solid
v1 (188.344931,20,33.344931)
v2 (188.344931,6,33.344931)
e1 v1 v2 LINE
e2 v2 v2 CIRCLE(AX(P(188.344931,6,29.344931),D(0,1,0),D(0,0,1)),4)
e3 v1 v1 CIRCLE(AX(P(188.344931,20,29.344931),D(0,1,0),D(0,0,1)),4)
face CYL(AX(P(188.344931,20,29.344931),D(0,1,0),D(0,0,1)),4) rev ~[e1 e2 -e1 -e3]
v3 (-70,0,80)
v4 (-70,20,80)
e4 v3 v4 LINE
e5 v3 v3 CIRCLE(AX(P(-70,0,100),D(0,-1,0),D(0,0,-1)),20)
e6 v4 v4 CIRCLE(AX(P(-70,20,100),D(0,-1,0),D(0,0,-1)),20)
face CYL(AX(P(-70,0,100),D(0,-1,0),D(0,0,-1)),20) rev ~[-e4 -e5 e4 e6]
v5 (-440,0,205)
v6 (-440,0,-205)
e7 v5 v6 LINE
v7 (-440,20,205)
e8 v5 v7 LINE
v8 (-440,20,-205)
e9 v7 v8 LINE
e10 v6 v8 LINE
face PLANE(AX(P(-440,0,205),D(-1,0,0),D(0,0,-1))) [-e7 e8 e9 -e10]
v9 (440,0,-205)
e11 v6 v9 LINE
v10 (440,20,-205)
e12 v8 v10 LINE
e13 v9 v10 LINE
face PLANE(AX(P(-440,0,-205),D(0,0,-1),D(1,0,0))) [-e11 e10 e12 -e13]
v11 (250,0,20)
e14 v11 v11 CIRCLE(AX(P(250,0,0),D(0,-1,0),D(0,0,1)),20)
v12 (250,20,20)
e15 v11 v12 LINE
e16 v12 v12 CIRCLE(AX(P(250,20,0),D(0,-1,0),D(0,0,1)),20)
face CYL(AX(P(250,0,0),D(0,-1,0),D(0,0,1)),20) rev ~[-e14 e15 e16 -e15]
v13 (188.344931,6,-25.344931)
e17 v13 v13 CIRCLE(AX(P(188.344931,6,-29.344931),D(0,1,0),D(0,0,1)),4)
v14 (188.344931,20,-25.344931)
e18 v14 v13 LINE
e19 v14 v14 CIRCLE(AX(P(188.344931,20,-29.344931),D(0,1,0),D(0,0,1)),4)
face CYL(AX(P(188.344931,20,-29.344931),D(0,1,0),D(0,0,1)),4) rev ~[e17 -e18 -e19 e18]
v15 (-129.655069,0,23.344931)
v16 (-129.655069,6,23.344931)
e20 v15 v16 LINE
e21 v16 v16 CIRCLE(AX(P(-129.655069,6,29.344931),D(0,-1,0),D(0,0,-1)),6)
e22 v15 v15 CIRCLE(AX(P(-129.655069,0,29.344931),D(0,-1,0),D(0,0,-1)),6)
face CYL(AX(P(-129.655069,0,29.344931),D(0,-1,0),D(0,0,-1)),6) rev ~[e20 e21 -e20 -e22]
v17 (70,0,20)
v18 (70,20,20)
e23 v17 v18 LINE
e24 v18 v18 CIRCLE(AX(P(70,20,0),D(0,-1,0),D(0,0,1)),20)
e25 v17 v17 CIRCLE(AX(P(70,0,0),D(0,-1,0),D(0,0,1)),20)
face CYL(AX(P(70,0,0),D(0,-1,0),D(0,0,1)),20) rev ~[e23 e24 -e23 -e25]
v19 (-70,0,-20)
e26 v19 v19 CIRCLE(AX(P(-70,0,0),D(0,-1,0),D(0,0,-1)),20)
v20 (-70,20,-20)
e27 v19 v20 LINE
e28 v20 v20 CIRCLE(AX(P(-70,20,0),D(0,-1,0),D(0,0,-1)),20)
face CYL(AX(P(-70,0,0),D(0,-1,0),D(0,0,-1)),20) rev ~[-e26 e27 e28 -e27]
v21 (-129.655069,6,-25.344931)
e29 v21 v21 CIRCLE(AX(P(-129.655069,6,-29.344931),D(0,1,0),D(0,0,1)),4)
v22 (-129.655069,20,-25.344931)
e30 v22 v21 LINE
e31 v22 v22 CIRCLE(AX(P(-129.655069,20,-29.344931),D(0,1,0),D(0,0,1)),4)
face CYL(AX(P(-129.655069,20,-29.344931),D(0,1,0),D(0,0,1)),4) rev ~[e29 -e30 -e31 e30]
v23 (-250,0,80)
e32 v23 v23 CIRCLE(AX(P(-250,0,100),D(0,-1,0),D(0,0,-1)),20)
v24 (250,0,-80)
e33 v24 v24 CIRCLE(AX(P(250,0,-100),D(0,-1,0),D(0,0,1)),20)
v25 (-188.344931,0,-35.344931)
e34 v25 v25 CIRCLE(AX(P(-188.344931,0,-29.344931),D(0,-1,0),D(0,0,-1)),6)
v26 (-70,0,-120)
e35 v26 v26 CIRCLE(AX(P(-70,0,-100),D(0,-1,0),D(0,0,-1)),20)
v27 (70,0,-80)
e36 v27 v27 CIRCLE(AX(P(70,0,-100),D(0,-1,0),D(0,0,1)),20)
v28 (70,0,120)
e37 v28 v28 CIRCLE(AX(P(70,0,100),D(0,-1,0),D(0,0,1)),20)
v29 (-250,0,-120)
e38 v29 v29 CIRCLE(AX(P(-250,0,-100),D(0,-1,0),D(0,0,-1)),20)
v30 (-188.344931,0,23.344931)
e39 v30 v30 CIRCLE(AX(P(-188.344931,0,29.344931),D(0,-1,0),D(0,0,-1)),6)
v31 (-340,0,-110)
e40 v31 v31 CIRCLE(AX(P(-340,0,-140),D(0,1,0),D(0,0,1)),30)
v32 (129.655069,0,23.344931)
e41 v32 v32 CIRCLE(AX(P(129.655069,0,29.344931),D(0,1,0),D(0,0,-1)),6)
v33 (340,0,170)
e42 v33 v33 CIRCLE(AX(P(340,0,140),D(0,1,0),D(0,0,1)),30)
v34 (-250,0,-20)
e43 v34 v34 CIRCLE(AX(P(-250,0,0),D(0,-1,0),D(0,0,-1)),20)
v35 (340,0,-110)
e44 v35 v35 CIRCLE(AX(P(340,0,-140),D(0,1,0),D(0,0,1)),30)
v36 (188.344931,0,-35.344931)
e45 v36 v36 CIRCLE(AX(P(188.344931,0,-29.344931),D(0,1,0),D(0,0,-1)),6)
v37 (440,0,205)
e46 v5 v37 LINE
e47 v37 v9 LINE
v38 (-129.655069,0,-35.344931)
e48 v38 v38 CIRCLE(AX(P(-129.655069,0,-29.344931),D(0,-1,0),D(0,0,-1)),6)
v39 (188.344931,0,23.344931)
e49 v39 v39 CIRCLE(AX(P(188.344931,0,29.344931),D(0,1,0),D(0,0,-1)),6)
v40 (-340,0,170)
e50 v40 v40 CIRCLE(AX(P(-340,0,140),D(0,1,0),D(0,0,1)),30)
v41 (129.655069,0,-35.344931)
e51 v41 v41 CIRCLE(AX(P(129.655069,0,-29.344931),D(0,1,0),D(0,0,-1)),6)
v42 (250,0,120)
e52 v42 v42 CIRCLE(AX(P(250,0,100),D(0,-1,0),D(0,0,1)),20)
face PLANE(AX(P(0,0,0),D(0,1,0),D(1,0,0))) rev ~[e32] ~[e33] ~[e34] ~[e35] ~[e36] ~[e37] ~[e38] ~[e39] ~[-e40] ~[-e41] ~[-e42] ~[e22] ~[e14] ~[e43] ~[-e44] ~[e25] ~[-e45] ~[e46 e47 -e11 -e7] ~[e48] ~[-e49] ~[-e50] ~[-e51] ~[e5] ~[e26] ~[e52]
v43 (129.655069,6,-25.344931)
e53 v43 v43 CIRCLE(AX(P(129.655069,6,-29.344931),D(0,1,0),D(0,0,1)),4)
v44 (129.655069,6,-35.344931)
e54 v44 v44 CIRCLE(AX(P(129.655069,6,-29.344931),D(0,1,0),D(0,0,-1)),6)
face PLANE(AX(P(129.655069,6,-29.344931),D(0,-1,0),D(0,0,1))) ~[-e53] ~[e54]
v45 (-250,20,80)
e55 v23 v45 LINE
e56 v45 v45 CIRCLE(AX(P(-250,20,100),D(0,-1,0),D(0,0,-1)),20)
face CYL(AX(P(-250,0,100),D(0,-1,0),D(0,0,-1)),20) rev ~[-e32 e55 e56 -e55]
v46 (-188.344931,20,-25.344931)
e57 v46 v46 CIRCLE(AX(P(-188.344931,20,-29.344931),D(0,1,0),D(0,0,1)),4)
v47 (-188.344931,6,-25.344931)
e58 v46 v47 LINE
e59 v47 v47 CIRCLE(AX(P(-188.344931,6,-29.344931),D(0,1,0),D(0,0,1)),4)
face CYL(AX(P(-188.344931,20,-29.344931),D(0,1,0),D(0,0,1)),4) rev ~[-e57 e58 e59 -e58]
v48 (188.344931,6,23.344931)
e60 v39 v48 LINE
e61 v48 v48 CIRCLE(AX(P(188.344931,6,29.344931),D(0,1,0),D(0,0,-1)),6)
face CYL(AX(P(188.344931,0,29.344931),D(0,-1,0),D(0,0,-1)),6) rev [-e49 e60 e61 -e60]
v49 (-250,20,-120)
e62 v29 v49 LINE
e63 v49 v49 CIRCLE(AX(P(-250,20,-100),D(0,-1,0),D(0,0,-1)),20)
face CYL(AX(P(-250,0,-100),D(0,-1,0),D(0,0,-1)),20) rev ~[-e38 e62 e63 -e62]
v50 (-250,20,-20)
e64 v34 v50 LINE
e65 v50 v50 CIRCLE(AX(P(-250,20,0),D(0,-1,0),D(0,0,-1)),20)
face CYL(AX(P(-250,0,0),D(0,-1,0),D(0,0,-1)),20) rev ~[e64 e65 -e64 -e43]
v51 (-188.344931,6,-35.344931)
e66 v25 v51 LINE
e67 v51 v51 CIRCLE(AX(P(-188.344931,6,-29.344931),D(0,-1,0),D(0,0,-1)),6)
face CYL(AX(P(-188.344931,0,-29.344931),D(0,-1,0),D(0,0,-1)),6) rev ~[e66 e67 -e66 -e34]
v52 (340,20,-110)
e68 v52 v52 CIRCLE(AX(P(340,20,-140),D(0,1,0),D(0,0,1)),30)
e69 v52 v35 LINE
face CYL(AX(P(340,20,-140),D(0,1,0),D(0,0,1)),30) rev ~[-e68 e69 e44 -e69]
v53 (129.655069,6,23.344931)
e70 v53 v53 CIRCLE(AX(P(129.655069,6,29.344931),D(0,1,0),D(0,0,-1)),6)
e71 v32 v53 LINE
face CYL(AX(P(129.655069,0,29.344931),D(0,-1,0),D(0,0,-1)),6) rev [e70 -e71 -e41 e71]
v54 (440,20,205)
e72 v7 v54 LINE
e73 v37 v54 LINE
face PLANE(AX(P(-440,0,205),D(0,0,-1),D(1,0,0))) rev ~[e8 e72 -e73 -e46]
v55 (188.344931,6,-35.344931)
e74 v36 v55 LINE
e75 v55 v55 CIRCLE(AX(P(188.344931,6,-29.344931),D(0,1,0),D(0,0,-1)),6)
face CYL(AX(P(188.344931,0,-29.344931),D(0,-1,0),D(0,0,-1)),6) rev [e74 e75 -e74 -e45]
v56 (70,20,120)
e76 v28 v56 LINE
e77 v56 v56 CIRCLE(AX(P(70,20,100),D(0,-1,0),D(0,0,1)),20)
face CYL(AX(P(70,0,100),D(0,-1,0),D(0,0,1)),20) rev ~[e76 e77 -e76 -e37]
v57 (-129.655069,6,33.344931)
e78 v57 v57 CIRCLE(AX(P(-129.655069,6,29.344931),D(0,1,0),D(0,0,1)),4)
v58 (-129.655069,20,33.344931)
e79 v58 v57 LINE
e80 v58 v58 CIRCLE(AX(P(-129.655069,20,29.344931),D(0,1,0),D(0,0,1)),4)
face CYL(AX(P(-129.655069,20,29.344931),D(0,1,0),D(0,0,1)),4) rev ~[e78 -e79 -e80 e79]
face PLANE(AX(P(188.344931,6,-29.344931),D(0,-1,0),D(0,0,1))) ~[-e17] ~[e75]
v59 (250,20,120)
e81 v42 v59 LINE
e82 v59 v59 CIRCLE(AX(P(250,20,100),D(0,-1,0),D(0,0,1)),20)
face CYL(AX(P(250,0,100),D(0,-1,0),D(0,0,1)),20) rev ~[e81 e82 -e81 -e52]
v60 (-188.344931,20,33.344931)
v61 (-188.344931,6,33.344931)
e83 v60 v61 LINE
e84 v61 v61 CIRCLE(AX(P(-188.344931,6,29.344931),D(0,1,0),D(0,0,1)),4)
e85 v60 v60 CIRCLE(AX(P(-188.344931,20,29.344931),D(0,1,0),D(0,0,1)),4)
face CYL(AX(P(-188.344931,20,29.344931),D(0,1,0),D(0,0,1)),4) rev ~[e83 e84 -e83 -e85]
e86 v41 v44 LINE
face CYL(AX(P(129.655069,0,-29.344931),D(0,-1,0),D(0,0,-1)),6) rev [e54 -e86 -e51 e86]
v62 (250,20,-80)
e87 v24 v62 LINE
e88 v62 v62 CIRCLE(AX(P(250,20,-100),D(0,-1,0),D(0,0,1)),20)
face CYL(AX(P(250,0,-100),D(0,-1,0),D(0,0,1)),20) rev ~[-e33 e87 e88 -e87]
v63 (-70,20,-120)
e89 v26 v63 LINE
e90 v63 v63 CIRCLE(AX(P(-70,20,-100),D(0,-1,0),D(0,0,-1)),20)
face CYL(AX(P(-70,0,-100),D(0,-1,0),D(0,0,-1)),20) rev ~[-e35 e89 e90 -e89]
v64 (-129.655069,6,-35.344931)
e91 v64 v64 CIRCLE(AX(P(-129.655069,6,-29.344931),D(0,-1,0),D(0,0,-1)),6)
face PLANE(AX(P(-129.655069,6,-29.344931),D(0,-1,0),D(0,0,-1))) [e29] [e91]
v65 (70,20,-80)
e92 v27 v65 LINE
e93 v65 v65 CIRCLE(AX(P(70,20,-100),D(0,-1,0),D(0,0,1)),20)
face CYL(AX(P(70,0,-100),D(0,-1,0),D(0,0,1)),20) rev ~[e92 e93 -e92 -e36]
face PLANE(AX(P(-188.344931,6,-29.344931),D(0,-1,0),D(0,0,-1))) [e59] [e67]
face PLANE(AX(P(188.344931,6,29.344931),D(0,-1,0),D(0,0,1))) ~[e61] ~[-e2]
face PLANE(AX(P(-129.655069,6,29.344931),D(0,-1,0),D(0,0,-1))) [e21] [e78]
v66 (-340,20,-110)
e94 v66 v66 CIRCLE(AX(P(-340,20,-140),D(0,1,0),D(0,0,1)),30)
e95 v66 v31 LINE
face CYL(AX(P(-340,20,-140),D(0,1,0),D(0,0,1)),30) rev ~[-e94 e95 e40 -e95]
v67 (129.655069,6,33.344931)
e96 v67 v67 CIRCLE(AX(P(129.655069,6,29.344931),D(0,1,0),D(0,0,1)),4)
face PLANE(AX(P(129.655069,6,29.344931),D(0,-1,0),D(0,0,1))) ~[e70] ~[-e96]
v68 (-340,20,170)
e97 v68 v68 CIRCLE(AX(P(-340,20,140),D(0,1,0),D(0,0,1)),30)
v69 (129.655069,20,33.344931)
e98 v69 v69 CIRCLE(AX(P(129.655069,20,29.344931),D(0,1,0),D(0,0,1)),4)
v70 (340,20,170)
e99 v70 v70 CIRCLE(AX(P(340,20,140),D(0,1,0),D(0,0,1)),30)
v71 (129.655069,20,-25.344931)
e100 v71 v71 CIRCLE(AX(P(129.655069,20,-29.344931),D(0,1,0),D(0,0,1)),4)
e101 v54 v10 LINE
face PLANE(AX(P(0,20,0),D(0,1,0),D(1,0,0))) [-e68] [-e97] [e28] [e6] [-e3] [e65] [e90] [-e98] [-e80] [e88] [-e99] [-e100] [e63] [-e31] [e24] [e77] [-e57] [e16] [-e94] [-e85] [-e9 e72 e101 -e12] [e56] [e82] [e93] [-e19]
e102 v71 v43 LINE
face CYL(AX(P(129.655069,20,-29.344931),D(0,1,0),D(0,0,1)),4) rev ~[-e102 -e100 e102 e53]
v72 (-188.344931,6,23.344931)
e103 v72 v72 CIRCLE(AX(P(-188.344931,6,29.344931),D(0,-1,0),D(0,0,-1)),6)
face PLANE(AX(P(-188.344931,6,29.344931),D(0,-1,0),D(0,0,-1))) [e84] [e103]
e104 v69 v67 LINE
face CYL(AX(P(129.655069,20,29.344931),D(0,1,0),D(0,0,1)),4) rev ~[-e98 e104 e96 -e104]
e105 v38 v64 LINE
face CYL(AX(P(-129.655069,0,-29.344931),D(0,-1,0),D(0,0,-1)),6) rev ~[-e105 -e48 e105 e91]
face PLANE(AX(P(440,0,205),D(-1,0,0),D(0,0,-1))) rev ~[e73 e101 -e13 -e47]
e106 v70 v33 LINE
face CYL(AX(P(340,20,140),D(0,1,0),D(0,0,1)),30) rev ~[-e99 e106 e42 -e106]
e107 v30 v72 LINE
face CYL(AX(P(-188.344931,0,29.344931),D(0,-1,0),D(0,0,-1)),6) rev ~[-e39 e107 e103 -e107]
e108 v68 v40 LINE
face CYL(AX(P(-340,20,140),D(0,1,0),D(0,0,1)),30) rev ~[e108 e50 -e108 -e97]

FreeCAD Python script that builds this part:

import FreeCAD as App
import Part
import Sketcher

V = App.Vector


def add_polygon(sketch, points):
    """Adds a closed chain of lines whose ends are joined by coincident constraints."""
    first, n = sketch.GeometryCount, len(points)
    for a, b in zip(points, points[1:] + points[:1]):
        sketch.addGeometry(Part.LineSegment(App.Vector(*a, 0), App.Vector(*b, 0)), False)
    for i in range(n):
        sketch.addConstraint(Sketcher.Constraint("Coincident", first + i, 2, first + (i + 1) % n, 1))

doc = App.newDocument("Part")
body = doc.addObject("PartDesign::Body", "Body")

sketch1 = doc.addObject("Sketcher::SketchObject", "Sketch")
body.addObject(sketch1)
sketch1.AttachmentSupport = (doc.XZ_Plane, [""])
sketch1.MapMode = "FlatFace"
add_polygon(sketch1, [(-440, -205), (-440, 205), (440, 205), (440, -205)])
sketch1.addConstraint([
    Sketcher.Constraint("Vertical", 0),
    Sketcher.Constraint("Horizontal", 1),
    Sketcher.Constraint("Vertical", 2),
    Sketcher.Constraint("Horizontal", 3),
    Sketcher.Constraint("Symmetric", 0, 2, 2, 2, -1, 1),
    Sketcher.Constraint("DistanceX", 1, 1, 1, 2, 880.0),
    Sketcher.Constraint("DistanceY", 0, 1, 0, 2, 410.0),
])
pad1 = doc.addObject("PartDesign::Pad", "Pad")
body.addObject(pad1)
pad1.Profile = sketch1
pad1.Length = 20
pad1.Reversed = True

sketch2 = doc.addObject("Sketcher::SketchObject", "Sketch001")
body.addObject(sketch2)
sketch2.AttachmentSupport = (doc.XZ_Plane, [""])
sketch2.MapMode = "FlatFace"
sketch2.AttachmentOffset = App.Placement(V(0, 0, -20), App.Rotation())
sketch2.addGeometry([
    Part.Circle(V(-340, -140, 0), V(0, 0, 1), 30),
    Part.Circle(V(340, -140, 0), V(0, 0, 1), 30),
    Part.Circle(V(340, 140, 0), V(0, 0, 1), 30),
    Part.Circle(V(-340, 140, 0), V(0, 0, 1), 30),
], False)
sketch2.addConstraint([
    Sketcher.Constraint("Equal", 0, 1),
    Sketcher.Constraint("Equal", 1, 2),
    Sketcher.Constraint("Equal", 2, 3),
    Sketcher.Constraint("Symmetric", 0, 3, 2, 3, -1, 1),
    Sketcher.Constraint("Symmetric", 1, 3, 3, 3, -1, 1),
    Sketcher.Constraint("Symmetric", 0, 3, 1, 3, -2),
    Sketcher.Constraint("Diameter", 0, 60.0),
    Sketcher.Constraint("DistanceX", 0, 3, -1, 1, 340.0),
    Sketcher.Constraint("DistanceY", 0, 3, -1, 1, 140.0),
])
pocket1 = doc.addObject("PartDesign::Pocket", "Pocket")
body.addObject(pocket1)
pocket1.Profile = sketch2
pocket1.Length = 142
pocket1.Reversed = True

sketch3 = doc.addObject("Sketcher::SketchObject", "Sketch002")
body.addObject(sketch3)
sketch3.AttachmentSupport = (doc.XZ_Plane, [""])
sketch3.MapMode = "FlatFace"
sketch3.AttachmentOffset = App.Placement(V(0, 0, -20), App.Rotation())
sketch3.addGeometry([
    Part.Circle(V(-129.655069, -29.344931, 0), V(0, 0, 1), 4),
    Part.Circle(V(-129.655069, 29.344931, 0), V(0, 0, 1), 4),
    Part.Circle(V(-188.344931, 29.344931, 0), V(0, 0, 1), 4),
    Part.Circle(V(-188.344931, -29.344931, 0), V(0, 0, 1), 4),
    Part.Circle(V(188.344931, -29.344931, 0), V(0, 0, 1), 4),
    Part.Circle(V(188.344931, 29.344931, 0), V(0, 0, 1), 4),
    Part.Circle(V(129.655069, 29.344931, 0), V(0, 0, 1), 4),
    Part.Circle(V(129.655069, -29.344931, 0), V(0, 0, 1), 4),
], False)
sketch3.addConstraint([
    Sketcher.Constraint("Equal", 0, 1),
    Sketcher.Constraint("Equal", 1, 2),
    Sketcher.Constraint("Equal", 2, 3),
    Sketcher.Constraint("Equal", 3, 4),
    Sketcher.Constraint("Equal", 4, 5),
    Sketcher.Constraint("Equal", 5, 6),
    Sketcher.Constraint("Equal", 6, 7),
    Sketcher.Constraint("Symmetric", 2, 3, 4, 3, -1, 1),
    Sketcher.Constraint("Symmetric", 3, 3, 5, 3, -1, 1),
    Sketcher.Constraint("Symmetric", 0, 3, 6, 3, -1, 1),
    Sketcher.Constraint("Symmetric", 1, 3, 7, 3, -1, 1),
    Sketcher.Constraint("Symmetric", 3, 3, 4, 3, -2),
    Sketcher.Constraint("Symmetric", 1, 3, 6, 3, -2),
    Sketcher.Constraint("Horizontal", 1, 3, 2, 3),
    Sketcher.Constraint("Diameter", 0, 8.0),
    Sketcher.Constraint("DistanceX", 0, 3, 4, 3, 318.0),
    Sketcher.Constraint("DistanceX", 0, 3, -1, 1, 129.655069),
    Sketcher.Constraint("DistanceY", 0, 3, -1, 1, 29.344931),
])
pocket2 = doc.addObject("PartDesign::Pocket", "Pocket001")
body.addObject(pocket2)
pocket2.Profile = sketch3
pocket2.Length = 136
pocket2.Reversed = True

sketch4 = doc.addObject("Sketcher::SketchObject", "Sketch003")
body.addObject(sketch4)
sketch4.AttachmentSupport = (doc.XZ_Plane, [""])
sketch4.MapMode = "FlatFace"
sketch4.addGeometry([
    Part.Circle(V(-188.344931, 29.344931, 0), V(0, 0, 1), 6),
    Part.Circle(V(-129.655069, 29.344931, 0), V(0, 0, 1), 6),
    Part.Circle(V(-129.655069, -29.344931, 0), V(0, 0, 1), 6),
    Part.Circle(V(-188.344931, -29.344931, 0), V(0, 0, 1), 6),
], False)
sketch4.addConstraint([
    Sketcher.Constraint("Equal", 0, 1),
    Sketcher.Constraint("Equal", 1, 2),
    Sketcher.Constraint("Equal", 2, 3),
    Sketcher.Constraint("Symmetric", 1, 3, 2, 3, -1),
    Sketcher.Constraint("Symmetric", 0, 3, 3, 3, -1),
    Sketcher.Constraint("Horizontal", 0, 3, 1, 3),
    Sketcher.Constraint("Diameter", 0, 12.0),
    Sketcher.Constraint("DistanceX", 0, 3, -1, 1, 188.344931),
    Sketcher.Constraint("DistanceY", -1, 1, 0, 3, 29.344931),
    Sketcher.Constraint("DistanceX", 1, 3, -1, 1, 129.655069),
])
pocket3 = doc.addObject("PartDesign::Pocket", "Pocket002")
body.addObject(pocket3)
pocket3.Profile = sketch4
pocket3.Length = 6
doc.recompute()

mirrored = doc.addObject("PartDesign::Mirrored", "Mirrored")
body.addObject(mirrored)
mirrored.Originals = [pocket3]
mirrored.MirrorPlane = (doc.YZ_Plane, [""])
body.Tip = mirrored

sketch5 = doc.addObject("Sketcher::SketchObject", "Sketch004")
body.addObject(sketch5)
sketch5.AttachmentSupport = (doc.XZ_Plane, [""])
sketch5.MapMode = "FlatFace"
sketch5.addGeometry([
    Part.Circle(V(-250, 0, 0), V(0, 0, 1), 20),
    Part.Circle(V(-250, 100, 0), V(0, 0, 1), 20),
    Part.Circle(V(-250, -100, 0), V(0, 0, 1), 20),
    Part.Circle(V(-70, 100, 0), V(0, 0, 1), 20),
    Part.Circle(V(-70, 0, 0), V(0, 0, 1), 20),
    Part.Circle(V(-70, -100, 0), V(0, 0, 1), 20),
    Part.Circle(V(70, -100, 0), V(0, 0, 1), 20),
    Part.Circle(V(70, 0, 0), V(0, 0, 1), 20),
    Part.Circle(V(70, 100, 0), V(0, 0, 1), 20),
    Part.Circle(V(250, -100, 0), V(0, 0, 1), 20),
    Part.Circle(V(250, 100, 0), V(0, 0, 1), 20),
    Part.Circle(V(250, 0, 0), V(0, 0, 1), 20),
], False)
sketch5.addConstraint([
    Sketcher.Constraint("Equal", 0, 1),
    Sketcher.Constraint("Equal", 1, 2),
    Sketcher.Constraint("Equal", 2, 3),
    Sketcher.Constraint("Equal", 3, 4),
    Sketcher.Constraint("Equal", 4, 5),
    Sketcher.Constraint("Equal", 5, 6),
    Sketcher.Constraint("Equal", 6, 7),
    Sketcher.Constraint("Equal", 7, 8),
    Sketcher.Constraint("Equal", 8, 9),
    Sketcher.Constraint("Equal", 9, 10),
    Sketcher.Constraint("Equal", 10, 11),
    Sketcher.Constraint("Symmetric", 3, 3, 6, 3, -1, 1),
    Sketcher.Constraint("Symmetric", 4, 3, 7, 3, -1, 1),
    Sketcher.Constraint("Symmetric", 5, 3, 8, 3, -1, 1),
    Sketcher.Constraint("Symmetric", 1, 3, 9, 3, -1, 1),
    Sketcher.Constraint("Symmetric", 2, 3, 10, 3, -1, 1),
    Sketcher.Constraint("Symmetric", 0, 3, 11, 3, -1, 1),
    Sketcher.Constraint("Symmetric", 5, 3, 6, 3, -2),
    Sketcher.Constraint("Symmetric", 2, 3, 9, 3, -2),
    Sketcher.Constraint("PointOnObject", 0, 3, -1),
    Sketcher.Constraint("PointOnObject", 4, 3, -1),
    Sketcher.Constraint("Horizontal", 1, 3, 3, 3),
    Sketcher.Constraint("Vertical", 0, 3, 1, 3),
    Sketcher.Constraint("Vertical", 3, 3, 4, 3),
    Sketcher.Constraint("Diameter", 0, 40.0),
    Sketcher.Constraint("DistanceX", 0, 3, -1, 1, 250.0),
    Sketcher.Constraint("DistanceY", -1, 1, 1, 3, 100.0),
    Sketcher.Constraint("DistanceX", 3, 3, -1, 1, 70.0),
])
pocket4 = doc.addObject("PartDesign::Pocket", "Pocket003")
body.addObject(pocket4)
pocket4.Profile = sketch5
pocket4.Length = 261

doc.recompute()
